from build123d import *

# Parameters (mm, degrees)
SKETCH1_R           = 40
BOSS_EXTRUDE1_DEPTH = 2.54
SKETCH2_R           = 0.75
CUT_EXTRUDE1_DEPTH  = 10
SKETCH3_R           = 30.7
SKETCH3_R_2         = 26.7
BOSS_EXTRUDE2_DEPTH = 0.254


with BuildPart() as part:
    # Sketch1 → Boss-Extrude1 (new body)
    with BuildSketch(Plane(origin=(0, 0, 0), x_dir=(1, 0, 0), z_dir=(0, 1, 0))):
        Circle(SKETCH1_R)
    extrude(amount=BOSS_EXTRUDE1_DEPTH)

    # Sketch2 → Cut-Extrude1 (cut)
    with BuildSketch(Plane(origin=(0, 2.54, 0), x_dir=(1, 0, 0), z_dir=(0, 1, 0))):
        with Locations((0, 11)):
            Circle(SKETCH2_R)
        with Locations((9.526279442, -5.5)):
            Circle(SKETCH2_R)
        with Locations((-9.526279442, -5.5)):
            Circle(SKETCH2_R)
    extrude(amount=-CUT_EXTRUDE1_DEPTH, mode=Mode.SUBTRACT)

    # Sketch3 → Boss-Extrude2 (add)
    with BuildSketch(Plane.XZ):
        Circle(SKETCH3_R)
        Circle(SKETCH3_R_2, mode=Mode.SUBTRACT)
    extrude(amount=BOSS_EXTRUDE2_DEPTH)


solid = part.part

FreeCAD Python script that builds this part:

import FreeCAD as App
import Part
import Sketcher
from FreeCAD import Vector
Q = App.Units.Quantity

doc = App.newDocument("Part")
body = doc.addObject("PartDesign::Body", "Body")

sketch1 = body.newObject("Sketcher::SketchObject", "Sketch")
sketch1.AttachmentSupport = (doc.getObject("XZ_Plane"), [""])
sketch1.MapMode = "FlatFace"
sketch1.addGeometry(Part.Circle(Vector(0, 0, 0), Vector(0, 0, 1), 40), False)
sketch1.addConstraint([
    Sketcher.Constraint("Coincident", 0, 3, -1, 1),
    Sketcher.Constraint("Diameter", 0, Q("80 mm")),
])
pad1 = body.newObject("PartDesign::Pad", "Pad")
pad1.Profile = sketch1
pad1.Length = 2.54
pad1.Reversed = True

sketch2 = body.newObject("Sketcher::SketchObject", "Sketch001")
sketch2.AttachmentSupport = (doc.getObject("XZ_Plane"), [""])
sketch2.MapMode = "FlatFace"
sketch2.AttachmentOffset = App.Placement(Vector(0, 0, -2.54), App.Rotation())
sketch2.addGeometry([
    Part.Circle(Vector(0, -11, 0), Vector(0, 0, 1), 0.75),
    Part.Circle(Vector(9.526279, 5.5, 0), Vector(0, 0, 1), 0.75),
    Part.Circle(Vector(-9.526279, 5.5, 0), Vector(0, 0, 1), 0.75),
], False)
sketch2.addConstraint([
    Sketcher.Constraint("Equal", 0, 1),
    Sketcher.Constraint("Equal", 1, 2),
    Sketcher.Constraint("Symmetric", 1, 3, 2, 3, -2),
    Sketcher.Constraint("PointOnObject", 0, 3, -2),
    Sketcher.Constraint("Diameter", 0, Q("1.5 mm")),
    Sketcher.Constraint("DistanceY", 0, 3, -1, 1, Q("11 mm")),
    Sketcher.Constraint("DistanceY", -1, 1, 1, 3, Q("5.5 mm")),
    Sketcher.Constraint("DistanceX", -1, 1, 1, 3, Q("9.526279 mm")),
])
pocket1 = body.newObject("PartDesign::Pocket", "Pocket")
pocket1.Profile = sketch2
pocket1.Length = 10
pocket1.Reversed = True

sketch3 = body.newObject("Sketcher::SketchObject", "Sketch002")
sketch3.AttachmentSupport = (doc.getObject("XZ_Plane"), [""])
sketch3.MapMode = "FlatFace"
sketch3.addGeometry([
    Part.Circle(Vector(0, 0, 0), Vector(0, 0, 1), 30.7),
    Part.Circle(Vector(0, 0, 0), Vector(0, 0, 1), 26.7),
], False)
sketch3.addConstraint([
    Sketcher.Constraint("Coincident", 0, 3, -1, 1),
    Sketcher.Constraint("Coincident", 1, 3, -1, 1),
    Sketcher.Constraint("Diameter", 0, Q("61.4 mm")),
    Sketcher.Constraint("Diameter", 1, Q("53.4 mm")),
])
pad2 = body.newObject("PartDesign::Pad", "Pad001")
pad2.Profile = sketch3
pad2.Length = 0.254

doc.recompute()
